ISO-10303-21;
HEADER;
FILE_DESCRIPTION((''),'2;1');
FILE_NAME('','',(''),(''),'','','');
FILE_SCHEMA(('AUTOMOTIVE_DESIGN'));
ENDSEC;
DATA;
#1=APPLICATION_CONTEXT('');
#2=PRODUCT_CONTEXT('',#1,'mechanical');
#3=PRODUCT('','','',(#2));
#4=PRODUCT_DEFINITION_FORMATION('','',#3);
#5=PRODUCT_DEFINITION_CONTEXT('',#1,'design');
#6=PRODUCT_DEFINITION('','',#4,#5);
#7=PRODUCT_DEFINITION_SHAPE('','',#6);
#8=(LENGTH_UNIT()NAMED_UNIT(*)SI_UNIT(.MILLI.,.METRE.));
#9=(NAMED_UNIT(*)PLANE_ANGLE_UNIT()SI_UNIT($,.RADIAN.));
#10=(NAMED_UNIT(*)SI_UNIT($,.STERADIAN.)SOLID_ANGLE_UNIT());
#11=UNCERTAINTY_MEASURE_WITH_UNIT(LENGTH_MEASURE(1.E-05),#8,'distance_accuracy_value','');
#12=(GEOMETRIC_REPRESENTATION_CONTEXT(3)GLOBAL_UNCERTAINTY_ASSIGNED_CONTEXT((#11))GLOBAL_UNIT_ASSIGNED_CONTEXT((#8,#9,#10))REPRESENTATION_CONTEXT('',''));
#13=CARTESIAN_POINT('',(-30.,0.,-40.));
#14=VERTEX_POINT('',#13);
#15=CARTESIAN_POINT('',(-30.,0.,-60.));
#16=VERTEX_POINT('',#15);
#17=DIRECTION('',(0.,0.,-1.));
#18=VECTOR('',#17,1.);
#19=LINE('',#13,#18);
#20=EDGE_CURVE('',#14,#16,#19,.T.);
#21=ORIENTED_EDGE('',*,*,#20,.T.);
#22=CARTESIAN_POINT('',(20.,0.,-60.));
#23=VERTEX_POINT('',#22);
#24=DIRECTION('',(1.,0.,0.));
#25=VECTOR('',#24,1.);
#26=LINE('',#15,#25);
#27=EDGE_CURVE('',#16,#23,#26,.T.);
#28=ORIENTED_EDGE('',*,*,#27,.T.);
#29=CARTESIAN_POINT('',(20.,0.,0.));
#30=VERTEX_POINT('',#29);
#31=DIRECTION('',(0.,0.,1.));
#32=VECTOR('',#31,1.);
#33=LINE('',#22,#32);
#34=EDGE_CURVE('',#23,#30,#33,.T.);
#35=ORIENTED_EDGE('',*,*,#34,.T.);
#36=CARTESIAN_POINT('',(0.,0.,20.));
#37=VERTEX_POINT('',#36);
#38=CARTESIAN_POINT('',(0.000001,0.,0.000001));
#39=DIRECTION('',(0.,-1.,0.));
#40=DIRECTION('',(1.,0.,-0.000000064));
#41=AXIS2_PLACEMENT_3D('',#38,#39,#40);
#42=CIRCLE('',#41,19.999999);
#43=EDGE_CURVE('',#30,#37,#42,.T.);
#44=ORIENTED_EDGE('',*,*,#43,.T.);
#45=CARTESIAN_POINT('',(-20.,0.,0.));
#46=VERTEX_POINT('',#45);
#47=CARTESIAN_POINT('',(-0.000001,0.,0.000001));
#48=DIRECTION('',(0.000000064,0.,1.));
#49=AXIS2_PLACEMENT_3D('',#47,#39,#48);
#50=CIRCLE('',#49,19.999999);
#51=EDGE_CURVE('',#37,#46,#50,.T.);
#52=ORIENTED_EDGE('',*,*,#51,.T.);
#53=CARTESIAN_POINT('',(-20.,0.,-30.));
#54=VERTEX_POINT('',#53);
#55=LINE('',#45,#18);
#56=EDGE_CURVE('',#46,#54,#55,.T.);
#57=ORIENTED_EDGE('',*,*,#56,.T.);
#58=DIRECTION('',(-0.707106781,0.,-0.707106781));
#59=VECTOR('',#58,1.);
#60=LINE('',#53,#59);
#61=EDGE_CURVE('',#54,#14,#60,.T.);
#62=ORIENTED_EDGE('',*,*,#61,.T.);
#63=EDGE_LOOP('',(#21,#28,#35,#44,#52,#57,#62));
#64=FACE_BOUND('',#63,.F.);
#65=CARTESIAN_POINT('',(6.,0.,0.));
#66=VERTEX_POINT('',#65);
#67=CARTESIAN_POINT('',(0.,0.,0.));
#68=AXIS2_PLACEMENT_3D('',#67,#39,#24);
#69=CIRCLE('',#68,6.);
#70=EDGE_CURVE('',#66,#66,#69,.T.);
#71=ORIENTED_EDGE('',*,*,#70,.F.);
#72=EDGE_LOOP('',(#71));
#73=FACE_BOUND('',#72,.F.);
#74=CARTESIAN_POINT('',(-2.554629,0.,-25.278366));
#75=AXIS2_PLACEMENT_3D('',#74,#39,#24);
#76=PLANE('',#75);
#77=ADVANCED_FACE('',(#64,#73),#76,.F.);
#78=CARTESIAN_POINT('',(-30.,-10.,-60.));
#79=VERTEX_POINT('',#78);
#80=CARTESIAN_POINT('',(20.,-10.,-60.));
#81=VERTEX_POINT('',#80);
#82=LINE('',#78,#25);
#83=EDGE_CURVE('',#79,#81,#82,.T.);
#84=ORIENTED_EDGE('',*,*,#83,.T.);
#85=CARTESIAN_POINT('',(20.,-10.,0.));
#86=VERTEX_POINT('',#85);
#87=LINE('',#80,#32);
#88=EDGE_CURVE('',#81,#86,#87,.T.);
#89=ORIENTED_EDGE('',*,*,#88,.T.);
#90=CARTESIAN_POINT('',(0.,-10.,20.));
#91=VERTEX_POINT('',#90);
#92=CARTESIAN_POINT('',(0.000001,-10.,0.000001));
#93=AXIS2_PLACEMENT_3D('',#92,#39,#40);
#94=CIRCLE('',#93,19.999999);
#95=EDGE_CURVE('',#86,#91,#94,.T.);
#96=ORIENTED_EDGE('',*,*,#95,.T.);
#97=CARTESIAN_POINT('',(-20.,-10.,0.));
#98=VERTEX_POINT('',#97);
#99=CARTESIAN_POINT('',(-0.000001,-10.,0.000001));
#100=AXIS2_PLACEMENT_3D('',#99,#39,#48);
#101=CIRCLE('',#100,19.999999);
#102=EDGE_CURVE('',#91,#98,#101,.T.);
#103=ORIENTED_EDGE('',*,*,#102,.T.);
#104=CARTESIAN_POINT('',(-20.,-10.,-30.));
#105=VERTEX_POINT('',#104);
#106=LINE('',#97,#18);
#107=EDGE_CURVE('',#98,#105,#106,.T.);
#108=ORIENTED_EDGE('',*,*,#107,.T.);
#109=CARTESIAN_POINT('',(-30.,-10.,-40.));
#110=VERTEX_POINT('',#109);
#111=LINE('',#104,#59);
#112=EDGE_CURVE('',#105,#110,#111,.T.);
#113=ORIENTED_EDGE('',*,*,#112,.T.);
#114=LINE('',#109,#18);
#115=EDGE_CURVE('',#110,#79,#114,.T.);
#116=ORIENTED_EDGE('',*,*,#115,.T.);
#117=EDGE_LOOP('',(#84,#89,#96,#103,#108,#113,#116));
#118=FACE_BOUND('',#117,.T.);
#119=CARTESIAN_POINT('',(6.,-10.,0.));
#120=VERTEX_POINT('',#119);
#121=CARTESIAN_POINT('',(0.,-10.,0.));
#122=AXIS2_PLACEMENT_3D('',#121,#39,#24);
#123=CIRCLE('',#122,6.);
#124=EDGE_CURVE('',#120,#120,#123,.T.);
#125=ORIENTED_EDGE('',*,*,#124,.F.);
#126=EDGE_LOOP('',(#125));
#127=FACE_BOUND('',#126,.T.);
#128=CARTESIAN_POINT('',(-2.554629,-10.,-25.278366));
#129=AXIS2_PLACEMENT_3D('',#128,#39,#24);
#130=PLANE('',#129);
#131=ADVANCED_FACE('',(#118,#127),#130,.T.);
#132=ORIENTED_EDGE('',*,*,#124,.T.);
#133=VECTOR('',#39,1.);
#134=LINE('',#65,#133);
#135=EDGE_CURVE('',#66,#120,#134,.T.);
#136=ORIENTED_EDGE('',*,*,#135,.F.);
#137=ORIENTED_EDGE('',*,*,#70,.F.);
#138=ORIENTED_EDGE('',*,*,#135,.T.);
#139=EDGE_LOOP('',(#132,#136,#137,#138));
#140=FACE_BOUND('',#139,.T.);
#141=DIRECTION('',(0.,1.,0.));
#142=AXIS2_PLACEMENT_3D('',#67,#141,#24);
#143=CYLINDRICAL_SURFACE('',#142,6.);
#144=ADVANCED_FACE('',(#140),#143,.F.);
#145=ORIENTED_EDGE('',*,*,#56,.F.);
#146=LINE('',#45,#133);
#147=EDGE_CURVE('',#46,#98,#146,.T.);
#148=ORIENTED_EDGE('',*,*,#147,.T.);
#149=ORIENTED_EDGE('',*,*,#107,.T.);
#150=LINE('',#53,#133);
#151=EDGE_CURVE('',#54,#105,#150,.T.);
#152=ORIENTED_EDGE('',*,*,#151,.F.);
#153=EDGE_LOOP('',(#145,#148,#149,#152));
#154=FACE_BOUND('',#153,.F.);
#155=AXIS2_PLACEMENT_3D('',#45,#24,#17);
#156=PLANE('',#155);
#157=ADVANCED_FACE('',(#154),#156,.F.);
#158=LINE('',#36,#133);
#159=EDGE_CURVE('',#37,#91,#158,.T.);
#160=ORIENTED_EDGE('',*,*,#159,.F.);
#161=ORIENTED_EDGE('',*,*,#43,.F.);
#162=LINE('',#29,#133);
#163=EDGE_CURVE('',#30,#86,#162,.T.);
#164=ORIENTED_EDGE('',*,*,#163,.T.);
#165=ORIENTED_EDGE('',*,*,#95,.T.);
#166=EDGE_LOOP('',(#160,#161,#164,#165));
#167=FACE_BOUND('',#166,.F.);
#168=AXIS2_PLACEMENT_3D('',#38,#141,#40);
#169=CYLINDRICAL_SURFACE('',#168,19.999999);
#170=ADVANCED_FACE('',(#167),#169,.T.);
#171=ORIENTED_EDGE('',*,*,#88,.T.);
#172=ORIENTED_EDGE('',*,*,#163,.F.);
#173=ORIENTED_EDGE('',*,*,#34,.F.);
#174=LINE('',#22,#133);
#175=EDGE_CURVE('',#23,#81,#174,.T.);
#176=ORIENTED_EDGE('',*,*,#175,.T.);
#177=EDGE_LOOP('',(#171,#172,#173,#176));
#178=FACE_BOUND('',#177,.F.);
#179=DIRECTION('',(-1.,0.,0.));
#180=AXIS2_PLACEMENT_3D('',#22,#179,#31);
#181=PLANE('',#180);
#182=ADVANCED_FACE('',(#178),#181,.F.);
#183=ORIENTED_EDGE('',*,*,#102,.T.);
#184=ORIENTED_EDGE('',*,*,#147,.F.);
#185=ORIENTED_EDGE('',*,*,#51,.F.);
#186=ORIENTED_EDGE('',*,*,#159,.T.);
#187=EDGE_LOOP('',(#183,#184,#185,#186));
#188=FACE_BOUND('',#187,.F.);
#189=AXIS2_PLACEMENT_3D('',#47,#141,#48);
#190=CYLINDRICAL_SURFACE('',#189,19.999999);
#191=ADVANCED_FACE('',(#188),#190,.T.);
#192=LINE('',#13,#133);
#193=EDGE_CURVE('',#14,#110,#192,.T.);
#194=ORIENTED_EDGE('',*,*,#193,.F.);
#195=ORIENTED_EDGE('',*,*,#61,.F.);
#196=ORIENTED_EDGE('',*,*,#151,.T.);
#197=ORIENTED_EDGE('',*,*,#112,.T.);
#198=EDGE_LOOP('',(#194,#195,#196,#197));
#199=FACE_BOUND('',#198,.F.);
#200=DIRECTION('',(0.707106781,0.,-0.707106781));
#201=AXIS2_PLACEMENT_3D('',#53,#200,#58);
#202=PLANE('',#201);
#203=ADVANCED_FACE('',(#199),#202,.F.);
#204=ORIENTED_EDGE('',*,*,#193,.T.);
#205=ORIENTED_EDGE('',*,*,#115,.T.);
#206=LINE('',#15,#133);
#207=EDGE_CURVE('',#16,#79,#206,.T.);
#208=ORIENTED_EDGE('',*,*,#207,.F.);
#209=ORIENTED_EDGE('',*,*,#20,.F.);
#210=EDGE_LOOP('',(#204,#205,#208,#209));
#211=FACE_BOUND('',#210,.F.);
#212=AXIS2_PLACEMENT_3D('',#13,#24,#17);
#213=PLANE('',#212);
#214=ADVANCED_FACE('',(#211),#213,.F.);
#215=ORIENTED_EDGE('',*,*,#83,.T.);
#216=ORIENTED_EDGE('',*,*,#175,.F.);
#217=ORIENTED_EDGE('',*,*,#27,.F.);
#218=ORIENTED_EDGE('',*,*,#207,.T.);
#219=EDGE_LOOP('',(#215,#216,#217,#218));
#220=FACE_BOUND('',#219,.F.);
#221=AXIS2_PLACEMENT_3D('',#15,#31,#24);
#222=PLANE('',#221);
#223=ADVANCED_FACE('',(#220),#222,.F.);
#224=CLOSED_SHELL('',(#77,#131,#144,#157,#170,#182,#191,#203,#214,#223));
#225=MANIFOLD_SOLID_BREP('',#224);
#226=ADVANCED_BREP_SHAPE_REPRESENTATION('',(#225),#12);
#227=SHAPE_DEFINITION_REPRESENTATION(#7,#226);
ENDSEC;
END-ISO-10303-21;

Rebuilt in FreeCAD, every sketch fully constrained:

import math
import FreeCAD as App
import Part
import Sketcher

V = App.Vector

doc = App.newDocument("Part")
params = doc.addObject("Spreadsheet::Sheet", "Params")
for row, (alias, value) in enumerate([
    ("sketch1_diameter", "12 mm"),
    ("sketch1_radius", "19.999999 mm"),
    ("sketch1_width", "50 mm"),
    ("sketch1_height", "30 mm"),
    ("sketch1_height2", "20 mm"),
    ("pad1_length", "10 mm"),
], start=1):
    params.set(f"A{row}", alias)
    params.set(f"B{row}", "=" + value)
    params.setAlias(f"B{row}", alias)

body = doc.addObject("PartDesign::Body", "Body")

# Sketch on XZ plane
sketch1 = body.newObject("Sketcher::SketchObject", "Sketch")
sketch1.AttachmentSupport = (doc.getObject("XZ_Plane"), [""])
sketch1.MapMode = "FlatFace"
sketch1.addGeometry([
    Part.ArcOfCircle(Part.Circle(V(0, 0, 0), V(0, 0, 1), 20), math.radians(90), math.radians(180)),  # 0
    Part.LineSegment(V(-20, 0, 0), V(-20, -30, 0)),  # 1
    Part.LineSegment(V(-20, -30, 0), V(-30, -40, 0)),  # 2
    Part.LineSegment(V(-30, -40, 0), V(-30, -60, 0)),  # 3
    Part.LineSegment(V(-30, -60, 0), V(20, -60, 0)),  # 4
    Part.LineSegment(V(20, -60, 0), V(20, 0, 0)),  # 5
    Part.ArcOfCircle(Part.Circle(V(0, 0, 0), V(0, 0, 1), 20), math.radians(0), math.radians(90)),  # 6
    Part.Circle(V(0, 0, 0), V(0, 0, 1), 6),  # 7
], False)
sketch1.addConstraint([
    Sketcher.Constraint("Tangent", 0, 2, 1, 1),
    Sketcher.Constraint("Coincident", 1, 2, 2, 1),
    Sketcher.Constraint("Coincident", 2, 2, 3, 1),
    Sketcher.Constraint("Coincident", 3, 2, 4, 1),
    Sketcher.Constraint("Coincident", 4, 2, 5, 1),
    Sketcher.Constraint("Tangent", 5, 2, 6, 1),
    Sketcher.Constraint("Tangent", 6, 2, 0, 1),
    Sketcher.Constraint("Vertical", 1),
    Sketcher.Constraint("Vertical", 3),
    Sketcher.Constraint("Horizontal", 4),
    Sketcher.Constraint("Vertical", 5),
    Sketcher.Constraint("Coincident", 0, 3, -1, 1),
    Sketcher.Constraint("Coincident", 7, 3, -1, 1),
    Sketcher.Constraint("Equal", 0, 6),
    Sketcher.Constraint("PointOnObject", 6, 2, -2),
    Sketcher.Constraint("Diameter", 7, 12.0),
    Sketcher.Constraint("Radius", 0, 19.999999),
    Sketcher.Constraint("DistanceX", 4, 1, 4, 2, 50.0),
    Sketcher.Constraint("DistanceY", 1, 2, 1, 1, 30.0),
    Sketcher.Constraint("DistanceY", 3, 2, 3, 1, 20.0),
    Sketcher.Constraint("DistanceY", 5, 1, 5, 2, 60.0),
])
sketch1.setExpression("Constraints[15]", "Params.sketch1_diameter")
sketch1.setExpression("Constraints[16]", "Params.sketch1_radius")
sketch1.setExpression("Constraints[17]", "Params.sketch1_width")
sketch1.setExpression("Constraints[18]", "Params.sketch1_height")
sketch1.setExpression("Constraints[19]", "Params.sketch1_height2")
pad1 = body.newObject("PartDesign::Pad", "Pad")
pad1.Profile = sketch1
pad1.setExpression("Length", "Params.pad1_length")

doc.recompute()
